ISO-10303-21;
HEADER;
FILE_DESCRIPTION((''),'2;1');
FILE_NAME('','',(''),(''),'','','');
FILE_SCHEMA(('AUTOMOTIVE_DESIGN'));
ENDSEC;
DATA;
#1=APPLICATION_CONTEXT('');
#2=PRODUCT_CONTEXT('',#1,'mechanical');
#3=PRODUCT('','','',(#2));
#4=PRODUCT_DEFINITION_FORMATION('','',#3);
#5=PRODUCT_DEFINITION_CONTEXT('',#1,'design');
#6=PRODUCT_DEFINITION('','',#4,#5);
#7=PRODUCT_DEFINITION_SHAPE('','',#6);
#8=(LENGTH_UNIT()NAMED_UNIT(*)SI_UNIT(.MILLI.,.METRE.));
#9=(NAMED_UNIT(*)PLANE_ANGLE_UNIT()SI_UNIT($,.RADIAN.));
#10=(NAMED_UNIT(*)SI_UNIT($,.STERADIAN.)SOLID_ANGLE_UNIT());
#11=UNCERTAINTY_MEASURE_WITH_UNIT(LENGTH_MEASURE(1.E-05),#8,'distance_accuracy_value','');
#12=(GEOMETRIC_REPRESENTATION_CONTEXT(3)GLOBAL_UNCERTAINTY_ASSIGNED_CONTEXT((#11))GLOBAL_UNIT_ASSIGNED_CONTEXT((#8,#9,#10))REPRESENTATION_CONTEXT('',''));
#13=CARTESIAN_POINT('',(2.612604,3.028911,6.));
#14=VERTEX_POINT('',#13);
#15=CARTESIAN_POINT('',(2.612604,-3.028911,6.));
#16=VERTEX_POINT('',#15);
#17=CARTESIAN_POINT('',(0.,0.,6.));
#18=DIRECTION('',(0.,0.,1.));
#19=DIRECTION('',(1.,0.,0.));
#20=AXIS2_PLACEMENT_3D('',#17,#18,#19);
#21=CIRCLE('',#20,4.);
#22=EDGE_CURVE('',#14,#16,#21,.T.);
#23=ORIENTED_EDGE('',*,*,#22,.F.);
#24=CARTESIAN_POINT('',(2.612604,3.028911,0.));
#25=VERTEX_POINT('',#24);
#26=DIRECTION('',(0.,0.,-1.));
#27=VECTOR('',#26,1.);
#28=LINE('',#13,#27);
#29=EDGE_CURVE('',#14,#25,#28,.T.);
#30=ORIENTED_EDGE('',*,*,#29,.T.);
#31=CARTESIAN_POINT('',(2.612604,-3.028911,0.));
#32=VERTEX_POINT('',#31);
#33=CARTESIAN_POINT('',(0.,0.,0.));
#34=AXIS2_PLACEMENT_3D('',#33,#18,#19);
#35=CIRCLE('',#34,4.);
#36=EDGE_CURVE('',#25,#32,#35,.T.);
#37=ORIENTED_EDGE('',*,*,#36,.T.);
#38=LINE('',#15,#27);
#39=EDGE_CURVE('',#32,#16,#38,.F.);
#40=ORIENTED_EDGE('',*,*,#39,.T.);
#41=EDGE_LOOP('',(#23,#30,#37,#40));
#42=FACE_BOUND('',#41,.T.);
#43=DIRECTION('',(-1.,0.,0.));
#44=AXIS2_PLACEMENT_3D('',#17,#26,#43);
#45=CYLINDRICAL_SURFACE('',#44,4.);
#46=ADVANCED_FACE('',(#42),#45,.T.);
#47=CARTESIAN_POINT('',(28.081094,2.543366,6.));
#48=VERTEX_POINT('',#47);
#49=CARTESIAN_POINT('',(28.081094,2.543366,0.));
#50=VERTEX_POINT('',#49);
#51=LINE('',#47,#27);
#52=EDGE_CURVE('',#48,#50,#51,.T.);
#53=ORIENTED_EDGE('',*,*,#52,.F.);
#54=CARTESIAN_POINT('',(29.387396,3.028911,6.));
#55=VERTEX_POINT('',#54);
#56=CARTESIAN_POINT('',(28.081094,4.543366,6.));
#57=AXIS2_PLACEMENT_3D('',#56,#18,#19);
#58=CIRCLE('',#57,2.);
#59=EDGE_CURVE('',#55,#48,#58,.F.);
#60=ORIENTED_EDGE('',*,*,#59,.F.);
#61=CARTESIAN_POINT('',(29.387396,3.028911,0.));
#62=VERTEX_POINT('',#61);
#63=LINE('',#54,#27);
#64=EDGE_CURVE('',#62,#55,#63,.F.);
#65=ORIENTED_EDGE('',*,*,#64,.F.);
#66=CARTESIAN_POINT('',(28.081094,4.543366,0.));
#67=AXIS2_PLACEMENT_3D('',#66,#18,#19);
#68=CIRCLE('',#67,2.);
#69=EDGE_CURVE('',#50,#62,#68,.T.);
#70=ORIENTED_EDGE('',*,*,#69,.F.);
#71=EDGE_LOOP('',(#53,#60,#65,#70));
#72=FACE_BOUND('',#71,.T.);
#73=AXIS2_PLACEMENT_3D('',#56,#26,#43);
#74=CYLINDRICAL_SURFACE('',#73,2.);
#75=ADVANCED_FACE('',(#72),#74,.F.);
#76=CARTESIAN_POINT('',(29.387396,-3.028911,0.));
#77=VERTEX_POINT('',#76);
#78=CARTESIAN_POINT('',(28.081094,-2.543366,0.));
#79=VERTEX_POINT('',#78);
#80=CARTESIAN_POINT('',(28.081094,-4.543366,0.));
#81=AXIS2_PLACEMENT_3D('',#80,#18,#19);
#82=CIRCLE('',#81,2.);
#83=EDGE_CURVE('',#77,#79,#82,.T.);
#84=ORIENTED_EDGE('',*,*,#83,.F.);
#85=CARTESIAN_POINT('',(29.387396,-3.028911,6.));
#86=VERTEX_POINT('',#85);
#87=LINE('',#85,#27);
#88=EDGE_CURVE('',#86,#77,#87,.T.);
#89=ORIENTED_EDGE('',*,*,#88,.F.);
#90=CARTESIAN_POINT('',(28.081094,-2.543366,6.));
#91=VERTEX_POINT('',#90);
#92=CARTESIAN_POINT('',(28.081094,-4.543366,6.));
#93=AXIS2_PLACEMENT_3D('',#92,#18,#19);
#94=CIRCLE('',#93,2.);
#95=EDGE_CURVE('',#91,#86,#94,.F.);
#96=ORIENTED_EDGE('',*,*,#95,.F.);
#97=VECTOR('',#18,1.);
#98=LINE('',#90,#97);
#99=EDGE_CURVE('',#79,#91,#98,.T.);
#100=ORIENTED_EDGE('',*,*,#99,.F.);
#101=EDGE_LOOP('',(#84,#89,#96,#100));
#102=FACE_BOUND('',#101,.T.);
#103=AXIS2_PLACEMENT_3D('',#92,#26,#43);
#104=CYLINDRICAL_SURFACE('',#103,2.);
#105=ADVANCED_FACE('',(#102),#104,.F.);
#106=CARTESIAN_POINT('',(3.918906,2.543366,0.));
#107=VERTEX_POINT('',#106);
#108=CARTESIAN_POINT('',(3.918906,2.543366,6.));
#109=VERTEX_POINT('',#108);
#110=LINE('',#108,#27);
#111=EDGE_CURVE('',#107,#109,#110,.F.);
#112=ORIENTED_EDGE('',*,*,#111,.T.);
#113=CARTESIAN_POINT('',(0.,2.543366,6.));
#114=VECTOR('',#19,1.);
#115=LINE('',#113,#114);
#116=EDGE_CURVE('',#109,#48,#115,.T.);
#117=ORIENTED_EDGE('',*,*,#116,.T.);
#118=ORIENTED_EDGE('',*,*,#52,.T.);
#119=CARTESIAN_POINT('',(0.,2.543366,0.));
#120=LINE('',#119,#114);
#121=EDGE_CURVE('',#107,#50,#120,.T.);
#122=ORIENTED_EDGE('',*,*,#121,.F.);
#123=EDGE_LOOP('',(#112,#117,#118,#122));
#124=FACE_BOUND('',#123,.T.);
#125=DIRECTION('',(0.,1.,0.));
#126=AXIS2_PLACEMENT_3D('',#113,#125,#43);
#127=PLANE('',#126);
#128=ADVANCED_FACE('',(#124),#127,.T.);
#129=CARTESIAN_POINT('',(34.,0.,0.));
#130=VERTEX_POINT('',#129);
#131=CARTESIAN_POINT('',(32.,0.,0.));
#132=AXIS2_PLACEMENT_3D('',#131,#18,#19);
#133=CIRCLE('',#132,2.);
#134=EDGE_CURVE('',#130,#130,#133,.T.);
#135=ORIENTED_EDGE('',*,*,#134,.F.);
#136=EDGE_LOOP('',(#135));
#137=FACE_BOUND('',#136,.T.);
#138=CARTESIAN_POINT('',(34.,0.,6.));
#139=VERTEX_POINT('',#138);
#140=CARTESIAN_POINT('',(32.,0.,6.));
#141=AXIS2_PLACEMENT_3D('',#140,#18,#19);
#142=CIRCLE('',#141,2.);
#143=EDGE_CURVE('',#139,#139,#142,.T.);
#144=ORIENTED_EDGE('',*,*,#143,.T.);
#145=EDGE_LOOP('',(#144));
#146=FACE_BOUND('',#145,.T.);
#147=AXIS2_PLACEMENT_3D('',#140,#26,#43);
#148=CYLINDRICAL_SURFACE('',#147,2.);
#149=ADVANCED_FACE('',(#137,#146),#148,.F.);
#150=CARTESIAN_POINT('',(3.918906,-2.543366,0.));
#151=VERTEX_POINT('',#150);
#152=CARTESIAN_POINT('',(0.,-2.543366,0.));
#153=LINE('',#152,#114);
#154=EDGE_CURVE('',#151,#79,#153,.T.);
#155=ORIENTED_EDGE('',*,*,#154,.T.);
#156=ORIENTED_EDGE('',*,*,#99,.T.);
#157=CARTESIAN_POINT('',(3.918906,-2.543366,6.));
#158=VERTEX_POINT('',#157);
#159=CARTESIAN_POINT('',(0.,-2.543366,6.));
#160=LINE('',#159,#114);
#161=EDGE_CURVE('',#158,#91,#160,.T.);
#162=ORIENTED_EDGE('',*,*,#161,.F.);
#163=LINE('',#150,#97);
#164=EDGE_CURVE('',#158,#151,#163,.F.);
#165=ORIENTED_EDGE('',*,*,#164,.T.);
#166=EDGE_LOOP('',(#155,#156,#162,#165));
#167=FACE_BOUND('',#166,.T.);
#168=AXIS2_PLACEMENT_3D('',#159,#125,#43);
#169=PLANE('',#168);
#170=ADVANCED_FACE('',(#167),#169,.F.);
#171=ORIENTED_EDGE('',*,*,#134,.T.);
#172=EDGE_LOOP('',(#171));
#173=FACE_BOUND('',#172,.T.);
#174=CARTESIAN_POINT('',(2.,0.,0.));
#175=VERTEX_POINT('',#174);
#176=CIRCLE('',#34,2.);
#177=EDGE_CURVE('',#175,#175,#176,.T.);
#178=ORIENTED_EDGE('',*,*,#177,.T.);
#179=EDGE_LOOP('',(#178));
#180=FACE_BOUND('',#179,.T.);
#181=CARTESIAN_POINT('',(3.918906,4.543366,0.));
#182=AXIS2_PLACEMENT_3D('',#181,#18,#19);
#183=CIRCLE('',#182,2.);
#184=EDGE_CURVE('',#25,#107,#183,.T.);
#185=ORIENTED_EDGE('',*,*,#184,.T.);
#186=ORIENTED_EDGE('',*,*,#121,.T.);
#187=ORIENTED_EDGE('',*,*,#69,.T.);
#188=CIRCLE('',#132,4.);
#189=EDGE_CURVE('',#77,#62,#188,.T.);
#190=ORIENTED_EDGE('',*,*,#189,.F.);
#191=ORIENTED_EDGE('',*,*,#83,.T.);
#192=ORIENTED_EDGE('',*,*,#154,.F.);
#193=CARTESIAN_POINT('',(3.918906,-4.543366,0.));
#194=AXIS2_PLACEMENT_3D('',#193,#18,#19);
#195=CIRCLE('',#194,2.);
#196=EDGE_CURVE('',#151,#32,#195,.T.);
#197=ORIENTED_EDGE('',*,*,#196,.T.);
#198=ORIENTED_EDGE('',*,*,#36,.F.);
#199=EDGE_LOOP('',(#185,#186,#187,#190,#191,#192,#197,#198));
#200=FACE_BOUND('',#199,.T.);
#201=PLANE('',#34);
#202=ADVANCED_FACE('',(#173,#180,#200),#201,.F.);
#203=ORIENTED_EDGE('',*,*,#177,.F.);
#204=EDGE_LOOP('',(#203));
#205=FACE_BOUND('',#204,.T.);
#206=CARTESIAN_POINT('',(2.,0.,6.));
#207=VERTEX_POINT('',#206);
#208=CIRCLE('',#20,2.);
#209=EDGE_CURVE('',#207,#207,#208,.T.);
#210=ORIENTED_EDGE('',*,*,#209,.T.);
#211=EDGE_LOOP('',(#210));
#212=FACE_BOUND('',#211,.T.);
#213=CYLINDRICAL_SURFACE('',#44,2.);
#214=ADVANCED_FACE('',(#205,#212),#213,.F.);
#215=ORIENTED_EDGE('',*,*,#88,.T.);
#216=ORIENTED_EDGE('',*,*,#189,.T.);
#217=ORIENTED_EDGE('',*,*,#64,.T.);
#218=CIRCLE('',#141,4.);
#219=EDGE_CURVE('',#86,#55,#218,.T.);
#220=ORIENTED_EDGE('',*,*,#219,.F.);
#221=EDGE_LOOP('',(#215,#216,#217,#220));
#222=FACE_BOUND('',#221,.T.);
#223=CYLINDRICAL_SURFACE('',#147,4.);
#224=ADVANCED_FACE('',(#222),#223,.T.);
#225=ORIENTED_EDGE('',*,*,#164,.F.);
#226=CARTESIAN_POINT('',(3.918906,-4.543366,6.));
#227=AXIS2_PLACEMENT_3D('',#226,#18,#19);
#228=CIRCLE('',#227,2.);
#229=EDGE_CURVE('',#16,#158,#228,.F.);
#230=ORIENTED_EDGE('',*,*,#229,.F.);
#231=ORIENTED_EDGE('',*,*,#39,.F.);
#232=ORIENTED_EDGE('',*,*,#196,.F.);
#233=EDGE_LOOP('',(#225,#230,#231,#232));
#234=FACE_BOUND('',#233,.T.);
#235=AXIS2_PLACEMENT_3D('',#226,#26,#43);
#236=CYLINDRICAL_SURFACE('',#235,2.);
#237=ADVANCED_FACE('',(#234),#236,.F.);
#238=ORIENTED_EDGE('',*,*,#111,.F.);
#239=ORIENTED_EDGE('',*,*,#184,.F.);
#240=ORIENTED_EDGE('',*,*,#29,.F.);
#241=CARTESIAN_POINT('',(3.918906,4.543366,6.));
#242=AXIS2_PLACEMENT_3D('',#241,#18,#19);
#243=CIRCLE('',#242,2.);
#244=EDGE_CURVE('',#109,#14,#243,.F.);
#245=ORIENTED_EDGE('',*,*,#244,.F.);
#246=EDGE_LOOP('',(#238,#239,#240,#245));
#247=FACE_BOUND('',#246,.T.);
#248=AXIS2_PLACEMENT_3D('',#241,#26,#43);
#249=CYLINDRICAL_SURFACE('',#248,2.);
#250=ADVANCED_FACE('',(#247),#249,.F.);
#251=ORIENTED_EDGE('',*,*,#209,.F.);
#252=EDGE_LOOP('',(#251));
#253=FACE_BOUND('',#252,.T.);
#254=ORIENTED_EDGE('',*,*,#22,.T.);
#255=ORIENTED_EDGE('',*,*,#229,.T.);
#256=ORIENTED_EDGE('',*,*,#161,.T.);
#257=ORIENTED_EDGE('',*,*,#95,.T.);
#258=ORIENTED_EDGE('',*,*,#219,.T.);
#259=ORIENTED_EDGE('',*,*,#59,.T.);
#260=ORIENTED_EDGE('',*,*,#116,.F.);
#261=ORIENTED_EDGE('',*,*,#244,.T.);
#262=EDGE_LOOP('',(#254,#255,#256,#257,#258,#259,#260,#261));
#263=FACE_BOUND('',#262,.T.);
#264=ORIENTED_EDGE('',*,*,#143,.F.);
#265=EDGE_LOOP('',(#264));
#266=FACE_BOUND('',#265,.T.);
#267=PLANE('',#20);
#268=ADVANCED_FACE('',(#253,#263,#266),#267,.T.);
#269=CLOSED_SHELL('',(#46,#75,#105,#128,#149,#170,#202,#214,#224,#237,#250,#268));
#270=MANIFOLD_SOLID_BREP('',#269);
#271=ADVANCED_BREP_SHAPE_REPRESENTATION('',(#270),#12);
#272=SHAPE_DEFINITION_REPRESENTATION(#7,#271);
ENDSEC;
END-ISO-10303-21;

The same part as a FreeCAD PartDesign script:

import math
import FreeCAD as App
import Part
import Sketcher
from FreeCAD import Vector


def edges_at(feature, points):
    """Names of the edges that pass closest to the given points."""
    edges = feature.Shape.Edges
    near = lambda p: min(range(len(edges)), key=lambda i: edges[i].distToShape(Part.Vertex(*p))[0])
    return sorted({f"Edge{near(p) + 1}" for p in points})

doc = App.newDocument("Part")
params = doc.addObject("Spreadsheet::Sheet", "Params")
for row, (alias, value) in enumerate([
    ("sketch1_diameter", "4 mm"),
    ("sketch1_radius", "4 mm"),
    ("pad1_length", "6 mm"),
    ("fillet_radius", "2 mm"),
], start=1):
    params.set(f"A{row}", alias)
    params.set(f"B{row}", "=" + value)
    params.setAlias(f"B{row}", alias)

body = doc.addObject("PartDesign::Body", "Body")

# Sketch on XY plane
sketch1 = body.newObject("Sketcher::SketchObject", "Sketch")
sketch1.AttachmentSupport = (doc.getObject("XY_Plane"), [""])
sketch1.MapMode = "FlatFace"
sketch1.addGeometry([
    Part.LineSegment(Vector(28.9, 2.5, 0), Vector(3.1, 2.5, 0)),  # 0
    Part.ArcOfCircle(Part.Circle(Vector(0, 0, 0), Vector(0, 0, 1), 4), math.radians(39), math.radians(90)),  # 1
    Part.ArcOfCircle(Part.Circle(Vector(0, 0, 0), Vector(0, 0, 1), 4), math.radians(90), math.radians(270)),  # 2
    Part.ArcOfCircle(Part.Circle(Vector(0, 0, 0), Vector(0, 0, 1), 4), math.radians(-90), math.radians(-39)),  # 3
    Part.LineSegment(Vector(3.1, -2.5, 0), Vector(28.9, -2.5, 0)),  # 4
    Part.ArcOfCircle(Part.Circle(Vector(32, 0, 0), Vector(0, 0, 1), 4), math.radians(-141), math.radians(-90)),  # 5
    Part.ArcOfCircle(Part.Circle(Vector(32, 0, 0), Vector(0, 0, 1), 4), math.radians(-90), math.radians(90)),  # 6
    Part.ArcOfCircle(Part.Circle(Vector(32, 0, 0), Vector(0, 0, 1), 4), math.radians(90), math.radians(141)),  # 7
    Part.Circle(Vector(0, 0, 0), Vector(0, 0, 1), 2),  # 8
    Part.Circle(Vector(32, 0, 0), Vector(0, 0, 1), 2),  # 9
], False)
sketch1.addConstraint([
    Sketcher.Constraint("Coincident", 0, 2, 1, 1),
    Sketcher.Constraint("Tangent", 1, 2, 2, 1),
    Sketcher.Constraint("Tangent", 2, 2, 3, 1),
    Sketcher.Constraint("Coincident", 3, 2, 4, 1),
    Sketcher.Constraint("Coincident", 4, 2, 5, 1),
    Sketcher.Constraint("Tangent", 5, 2, 6, 1),
    Sketcher.Constraint("Tangent", 6, 2, 7, 1),
    Sketcher.Constraint("Coincident", 7, 2, 0, 1),
    Sketcher.Constraint("Horizontal", 0),
    Sketcher.Constraint("Horizontal", 4),
    Sketcher.Constraint("Coincident", 1, 3, -1, 1),
    Sketcher.Constraint("Coincident", 8, 3, -1, 1),
    Sketcher.Constraint("Coincident", 9, 3, 5, 3),
    Sketcher.Constraint("Equal", 1, 2),
    Sketcher.Constraint("Equal", 2, 3),
    Sketcher.Constraint("Equal", 3, 5),
    Sketcher.Constraint("Equal", 5, 6),
    Sketcher.Constraint("Equal", 6, 7),
    Sketcher.Constraint("Equal", 8, 9),
    Sketcher.Constraint("Symmetric", 5, 2, 6, 2, -1),
    Sketcher.Constraint("PointOnObject", 1, 2, -2),
    Sketcher.Constraint("PointOnObject", 2, 2, -2),
    Sketcher.Constraint("Vertical", 0, 2, 3, 2),
    Sketcher.Constraint("Vertical", 9, 3, 5, 2),
    Sketcher.Constraint("Diameter", 8, 4.0),
    Sketcher.Constraint("Radius", 1, 4.0),
    Sketcher.Constraint("DistanceX", -1, 1, 5, 3, 32.0),
    Sketcher.Constraint("DistanceX", 0, 2, 0, 1, 25.825443),
])
sketch1.setExpression("Constraints[24]", "Params.sketch1_diameter")
sketch1.setExpression("Constraints[25]", "Params.sketch1_radius")
pad1 = body.newObject("PartDesign::Pad", "Pad")
pad1.Profile = sketch1
pad1.setExpression("Length", "Params.pad1_length")
doc.recompute()

fillet = body.newObject("PartDesign::Fillet", "Fillet")
fillet.Base = (pad1, edges_at(pad1, [
    (28.913, 2.543, 3),
    (28.913, -2.543, 3),
    (3.087, -2.543, 3),
    (3.087, 2.543, 3),
]))
fillet.setExpression("Radius", "Params.fillet_radius")

doc.recompute()
